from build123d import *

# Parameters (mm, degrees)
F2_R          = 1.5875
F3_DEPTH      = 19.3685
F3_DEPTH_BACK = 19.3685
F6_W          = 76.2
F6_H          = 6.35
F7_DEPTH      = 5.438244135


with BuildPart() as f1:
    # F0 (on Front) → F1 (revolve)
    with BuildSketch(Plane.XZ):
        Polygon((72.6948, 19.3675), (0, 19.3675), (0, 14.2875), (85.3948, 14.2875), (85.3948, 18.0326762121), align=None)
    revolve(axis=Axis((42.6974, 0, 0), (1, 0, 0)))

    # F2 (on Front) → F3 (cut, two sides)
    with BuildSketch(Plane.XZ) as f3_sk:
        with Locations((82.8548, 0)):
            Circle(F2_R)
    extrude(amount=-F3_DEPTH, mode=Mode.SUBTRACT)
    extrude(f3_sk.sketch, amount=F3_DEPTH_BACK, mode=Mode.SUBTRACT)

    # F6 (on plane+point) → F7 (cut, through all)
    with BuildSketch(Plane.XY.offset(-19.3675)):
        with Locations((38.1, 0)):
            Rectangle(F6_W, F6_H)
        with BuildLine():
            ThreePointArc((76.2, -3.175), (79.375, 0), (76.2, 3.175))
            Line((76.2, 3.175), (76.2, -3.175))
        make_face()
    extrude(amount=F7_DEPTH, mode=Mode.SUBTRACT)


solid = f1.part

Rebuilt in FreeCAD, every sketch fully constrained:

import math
import FreeCAD as App
import Part
import Sketcher
Q = App.Units.Quantity


def add_polygon(sketch, points):
    """Adds a closed chain of lines whose ends are joined by coincident constraints."""
    first, n = sketch.GeometryCount, len(points)
    for a, b in zip(points, points[1:] + points[:1]):
        sketch.addGeometry(Part.LineSegment(App.Vector(*a, 0), App.Vector(*b, 0)), False)
    for i in range(n):
        sketch.addConstraint(Sketcher.Constraint("Coincident", first + i, 2, first + (i + 1) % n, 1))

doc = App.newDocument("Part")
body = doc.addObject("PartDesign::Body", "Body")

# Sketch on XZ plane
sketch1 = body.newObject("Sketcher::SketchObject", "Sketch")
sketch1.AttachmentSupport = (doc.getObject("XZ_Plane"), [""])
sketch1.MapMode = "FlatFace"
add_polygon(sketch1, [(72.6948, 19.3675), (0, 19.3675), (0, 14.2875), (85.3948, 14.2875), (85.3948, 18.032676)])  # lines 0-4
sketch1.addConstraint([
    Sketcher.Constraint("Horizontal", 0),
    Sketcher.Constraint("Vertical", 1),
    Sketcher.Constraint("Horizontal", 2),
    Sketcher.Constraint("Vertical", 3),
    Sketcher.Constraint("PointOnObject", 0, 2, -2),
    Sketcher.Constraint("DistanceY", 1, 2, 1, 1, Q("0.2 in")),
    Sketcher.Constraint("Angle", 4, Q("174 deg")),
    Sketcher.Constraint("DistanceX", 4, 2, 3, 2, Q("0.5 in")),
    Sketcher.Constraint("DistanceX", 0, 2, 0, 1, Q("2.862 in")),
    Sketcher.Constraint("DistanceY", -1, 1, 1, 2, Q("0.5625 in")),
])
revolution = body.newObject("PartDesign::Revolution", "Revolution")
revolution.Profile = sketch1
revolution.ReferenceAxis = (sketch1, ["H_Axis"])
revolution.Angle = 360

# Sketch on XZ plane
sketch2 = body.newObject("Sketcher::SketchObject", "Sketch001")
sketch2.AttachmentSupport = (doc.getObject("XZ_Plane"), [""])
sketch2.MapMode = "FlatFace"
sketch2.addGeometry(Part.Circle(App.Vector(82.8548, 0, 0), App.Vector(0, 0, 1), 1.5875), False)
sketch2.addConstraint([
    Sketcher.Constraint("PointOnObject", 0, 3, -1),
    Sketcher.Constraint("Diameter", 0, Q("0.125 in")),
    Sketcher.Constraint("DistanceX", -1, 1, 0, 3, Q("3.262 in")),
])
pocket1 = body.newObject("PartDesign::Pocket", "Pocket")
pocket1.Profile = sketch2
pocket1.Type = "ThroughAll"
pocket1.Midplane = True

# Sketch on XY plane
sketch3 = body.newObject("Sketcher::SketchObject", "Sketch002")
sketch3.AttachmentSupport = (doc.getObject("XY_Plane"), [""])
sketch3.MapMode = "FlatFace"
sketch3.AttachmentOffset = App.Placement(App.Vector(0, 0, -0.7625 * 25.4), App.Rotation())
sketch3.addGeometry([
    Part.LineSegment(App.Vector(0, 3.175, 0), App.Vector(0, -3.175, 0)),
    Part.LineSegment(App.Vector(0, -3.175, 0), App.Vector(76.2, -3.175, 0)),
    Part.ArcOfCircle(Part.Circle(App.Vector(76.2, 0, 0), App.Vector(0, 0, 1), 3.175), math.radians(-90), math.radians(90)),
    Part.LineSegment(App.Vector(76.2, 3.175, 0), App.Vector(0, 3.175, 0)),
], False)
sketch3.addConstraint([
    Sketcher.Constraint("Coincident", 0, 2, 1, 1),
    Sketcher.Constraint("Tangent", 1, 2, 2, 1),
    Sketcher.Constraint("Tangent", 2, 2, 3, 1),
    Sketcher.Constraint("Coincident", 3, 2, 0, 1),
    Sketcher.Constraint("Vertical", 0),
    Sketcher.Constraint("Horizontal", 1),
    Sketcher.Constraint("Horizontal", 3),
    Sketcher.Constraint("Symmetric", 0, 2, 3, 2, -1, 1),
    Sketcher.Constraint("DistanceX", 1, 1, 1, 2, Q("3 in")),
    Sketcher.Constraint("Radius", 2, Q("0.125 in")),
])
pocket2 = body.newObject("PartDesign::Pocket", "Pocket001")
pocket2.Profile = sketch3
pocket2.Length = 5.438244
pocket2.Reversed = True

doc.recompute()
